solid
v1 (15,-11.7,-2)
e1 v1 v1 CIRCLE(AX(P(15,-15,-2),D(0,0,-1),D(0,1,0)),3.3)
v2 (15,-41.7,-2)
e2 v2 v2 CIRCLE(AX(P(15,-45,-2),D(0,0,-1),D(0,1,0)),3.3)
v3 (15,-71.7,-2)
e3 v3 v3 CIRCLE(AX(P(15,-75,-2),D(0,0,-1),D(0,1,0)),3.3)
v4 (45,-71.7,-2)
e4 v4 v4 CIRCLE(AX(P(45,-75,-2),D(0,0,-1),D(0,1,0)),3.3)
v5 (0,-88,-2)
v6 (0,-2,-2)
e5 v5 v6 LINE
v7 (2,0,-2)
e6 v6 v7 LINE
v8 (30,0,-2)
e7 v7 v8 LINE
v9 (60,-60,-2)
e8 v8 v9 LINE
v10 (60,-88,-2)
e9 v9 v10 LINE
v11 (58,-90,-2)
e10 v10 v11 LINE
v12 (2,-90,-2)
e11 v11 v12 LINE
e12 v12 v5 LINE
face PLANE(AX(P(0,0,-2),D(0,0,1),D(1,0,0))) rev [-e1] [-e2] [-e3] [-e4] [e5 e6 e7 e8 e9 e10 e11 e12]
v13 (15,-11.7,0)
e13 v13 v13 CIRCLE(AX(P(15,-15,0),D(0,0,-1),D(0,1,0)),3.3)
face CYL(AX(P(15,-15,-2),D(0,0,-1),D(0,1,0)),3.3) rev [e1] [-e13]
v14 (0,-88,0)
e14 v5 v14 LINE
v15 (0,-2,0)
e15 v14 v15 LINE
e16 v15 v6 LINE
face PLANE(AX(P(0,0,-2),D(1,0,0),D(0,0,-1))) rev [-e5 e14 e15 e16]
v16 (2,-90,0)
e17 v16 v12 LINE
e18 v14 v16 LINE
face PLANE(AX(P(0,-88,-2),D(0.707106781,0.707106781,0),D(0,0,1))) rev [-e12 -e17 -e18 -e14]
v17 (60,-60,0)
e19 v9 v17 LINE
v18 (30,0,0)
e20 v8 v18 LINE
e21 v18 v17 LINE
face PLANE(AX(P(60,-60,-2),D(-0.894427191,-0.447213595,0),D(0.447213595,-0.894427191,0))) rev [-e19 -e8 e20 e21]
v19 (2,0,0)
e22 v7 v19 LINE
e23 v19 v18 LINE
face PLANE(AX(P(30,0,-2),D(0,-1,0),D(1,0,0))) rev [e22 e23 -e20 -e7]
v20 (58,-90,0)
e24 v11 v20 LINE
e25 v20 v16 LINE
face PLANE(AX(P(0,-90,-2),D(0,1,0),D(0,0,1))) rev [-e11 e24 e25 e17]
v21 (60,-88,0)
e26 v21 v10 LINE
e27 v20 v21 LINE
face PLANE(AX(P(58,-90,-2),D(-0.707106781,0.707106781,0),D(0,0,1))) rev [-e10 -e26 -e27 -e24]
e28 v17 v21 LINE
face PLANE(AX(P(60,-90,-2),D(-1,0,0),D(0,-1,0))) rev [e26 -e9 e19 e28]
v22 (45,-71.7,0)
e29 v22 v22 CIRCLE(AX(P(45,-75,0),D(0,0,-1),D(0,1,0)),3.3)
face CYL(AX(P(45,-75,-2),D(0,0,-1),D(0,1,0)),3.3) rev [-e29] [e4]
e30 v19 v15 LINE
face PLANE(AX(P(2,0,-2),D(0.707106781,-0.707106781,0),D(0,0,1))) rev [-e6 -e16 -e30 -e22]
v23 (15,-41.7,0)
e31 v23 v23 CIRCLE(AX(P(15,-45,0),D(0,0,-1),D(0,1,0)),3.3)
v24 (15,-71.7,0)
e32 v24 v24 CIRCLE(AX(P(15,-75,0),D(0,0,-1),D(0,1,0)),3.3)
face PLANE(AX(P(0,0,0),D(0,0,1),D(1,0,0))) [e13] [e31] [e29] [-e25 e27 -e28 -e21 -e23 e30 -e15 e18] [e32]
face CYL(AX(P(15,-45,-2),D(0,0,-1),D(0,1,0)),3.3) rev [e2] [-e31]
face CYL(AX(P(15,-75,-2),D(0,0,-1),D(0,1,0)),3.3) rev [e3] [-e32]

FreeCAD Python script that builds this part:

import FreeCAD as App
import Part
import Sketcher

V = App.Vector
Q = App.Units.Quantity


def edges_at(feature, points):
    """Names of the edges that pass closest to the given points."""
    edges = feature.Shape.Edges
    near = lambda p: min(range(len(edges)), key=lambda i: edges[i].distToShape(Part.Vertex(*p))[0])
    return sorted({f"Edge{near(p) + 1}" for p in points})


def add_polygon(sketch, points):
    """Adds a closed chain of lines whose ends are joined by coincident constraints."""
    first, n = sketch.GeometryCount, len(points)
    for a, b in zip(points, points[1:] + points[:1]):
        sketch.addGeometry(Part.LineSegment(App.Vector(*a, 0), App.Vector(*b, 0)), False)
    for i in range(n):
        sketch.addConstraint(Sketcher.Constraint("Coincident", first + i, 2, first + (i + 1) % n, 1))

doc = App.newDocument("Part")
params = doc.addObject("Spreadsheet::Sheet", "Params")
for row, (alias, value) in enumerate([
    ("sketch1_width", "30 mm"),
    ("sketch1_width2", "60 mm"),
    ("sketch1_height", "90 mm"),
    ("pad1_length", "2 mm"),
    ("sketch2_diameter", "6.6 mm"),
    ("hole_diameter", "6.6 mm"),
    ("chamfer_size", "2 mm"),
], start=1):
    params.set(f"A{row}", alias)
    params.set(f"B{row}", "=" + value)
    params.setAlias(f"B{row}", alias)

body = doc.addObject("PartDesign::Body", "Body")

sketch1 = body.newObject("Sketcher::SketchObject", "Sketch")
sketch1.AttachmentSupport = (doc.getObject("XY_Plane"), [""])
sketch1.MapMode = "FlatFace"
add_polygon(sketch1, [(0, -90), (0, 0), (30, 0), (60, -60), (60, -90)])
sketch1.addConstraint([
    Sketcher.Constraint("Vertical", 0),
    Sketcher.Constraint("Horizontal", 1),
    Sketcher.Constraint("Vertical", 3),
    Sketcher.Constraint("Horizontal", 4),
    Sketcher.Constraint("Coincident", 0, 2, -1, 1),
    Sketcher.Constraint("Equal", 1, 3),
    Sketcher.Constraint("DistanceX", 1, 1, 1, 2, Q("30 mm")),
    Sketcher.Constraint("DistanceX", 4, 2, 4, 1, Q("60 mm")),
    Sketcher.Constraint("DistanceY", 0, 1, 0, 2, Q("90 mm")),
])
sketch1.setExpression("Constraints[11]", "Params.sketch1_width")
sketch1.setExpression("Constraints[12]", "Params.sketch1_width2")
sketch1.setExpression("Constraints[13]", "Params.sketch1_height")
pad1 = body.newObject("PartDesign::Pad", "Pad")
pad1.Profile = sketch1
pad1.setExpression("Length", "Params.pad1_length")
pad1.Reversed = True

sketch2 = body.newObject("Sketcher::SketchObject", "Sketch001")
sketch2.AttachmentSupport = (doc.getObject("XY_Plane"), [""])
sketch2.MapMode = "FlatFace"
sketch2.AttachmentOffset = App.Placement(V(0, 0, -2), App.Rotation())
sketch2.addGeometry([
    Part.Circle(V(45, -75, 0), V(0, 0, 1), 3.3),
    Part.Circle(V(15, -75, 0), V(0, 0, 1), 3.3),
    Part.Circle(V(15, -45, 0), V(0, 0, 1), 3.3),
    Part.Circle(V(15, -15, 0), V(0, 0, 1), 3.3),
], False)
sketch2.addConstraint([
    Sketcher.Constraint("Equal", 0, 1),
    Sketcher.Constraint("Equal", 1, 2),
    Sketcher.Constraint("Equal", 2, 3),
    Sketcher.Constraint("Horizontal", 0, 3, 1, 3),
    Sketcher.Constraint("Vertical", 1, 3, 2, 3),
    Sketcher.Constraint("Vertical", 2, 3, 3, 3),
    Sketcher.Constraint("Diameter", 0, Q("6.6 mm")),
    Sketcher.Constraint("DistanceX", -1, 1, 0, 3, Q("45 mm")),
    Sketcher.Constraint("DistanceY", 0, 3, -1, 1, Q("75 mm")),
    Sketcher.Constraint("DistanceX", -1, 1, 1, 3, Q("15 mm")),
    Sketcher.Constraint("DistanceY", 2, 3, -1, 1, Q("45 mm")),
    Sketcher.Constraint("DistanceY", 3, 3, -1, 1, Q("15 mm")),
])
sketch2.setExpression("Constraints[6]", "Params.sketch2_diameter")
doc.recompute()
hole = body.newObject("PartDesign::Hole", "Hole")
hole.Profile = sketch2
hole.ThreadType = "None"
hole.setExpression("Diameter", "Params.hole_diameter")
hole.DepthType = "ThroughAll"
hole.Reversed = True
doc.recompute()

chamfer = body.newObject("PartDesign::Chamfer", "Chamfer")
chamfer.Base = (hole, edges_at(hole, [(0, 0, -1), (0, -90, -1), (60, -90, -1)]))
chamfer.setExpression("Size", "Params.chamfer_size")

doc.recompute()
